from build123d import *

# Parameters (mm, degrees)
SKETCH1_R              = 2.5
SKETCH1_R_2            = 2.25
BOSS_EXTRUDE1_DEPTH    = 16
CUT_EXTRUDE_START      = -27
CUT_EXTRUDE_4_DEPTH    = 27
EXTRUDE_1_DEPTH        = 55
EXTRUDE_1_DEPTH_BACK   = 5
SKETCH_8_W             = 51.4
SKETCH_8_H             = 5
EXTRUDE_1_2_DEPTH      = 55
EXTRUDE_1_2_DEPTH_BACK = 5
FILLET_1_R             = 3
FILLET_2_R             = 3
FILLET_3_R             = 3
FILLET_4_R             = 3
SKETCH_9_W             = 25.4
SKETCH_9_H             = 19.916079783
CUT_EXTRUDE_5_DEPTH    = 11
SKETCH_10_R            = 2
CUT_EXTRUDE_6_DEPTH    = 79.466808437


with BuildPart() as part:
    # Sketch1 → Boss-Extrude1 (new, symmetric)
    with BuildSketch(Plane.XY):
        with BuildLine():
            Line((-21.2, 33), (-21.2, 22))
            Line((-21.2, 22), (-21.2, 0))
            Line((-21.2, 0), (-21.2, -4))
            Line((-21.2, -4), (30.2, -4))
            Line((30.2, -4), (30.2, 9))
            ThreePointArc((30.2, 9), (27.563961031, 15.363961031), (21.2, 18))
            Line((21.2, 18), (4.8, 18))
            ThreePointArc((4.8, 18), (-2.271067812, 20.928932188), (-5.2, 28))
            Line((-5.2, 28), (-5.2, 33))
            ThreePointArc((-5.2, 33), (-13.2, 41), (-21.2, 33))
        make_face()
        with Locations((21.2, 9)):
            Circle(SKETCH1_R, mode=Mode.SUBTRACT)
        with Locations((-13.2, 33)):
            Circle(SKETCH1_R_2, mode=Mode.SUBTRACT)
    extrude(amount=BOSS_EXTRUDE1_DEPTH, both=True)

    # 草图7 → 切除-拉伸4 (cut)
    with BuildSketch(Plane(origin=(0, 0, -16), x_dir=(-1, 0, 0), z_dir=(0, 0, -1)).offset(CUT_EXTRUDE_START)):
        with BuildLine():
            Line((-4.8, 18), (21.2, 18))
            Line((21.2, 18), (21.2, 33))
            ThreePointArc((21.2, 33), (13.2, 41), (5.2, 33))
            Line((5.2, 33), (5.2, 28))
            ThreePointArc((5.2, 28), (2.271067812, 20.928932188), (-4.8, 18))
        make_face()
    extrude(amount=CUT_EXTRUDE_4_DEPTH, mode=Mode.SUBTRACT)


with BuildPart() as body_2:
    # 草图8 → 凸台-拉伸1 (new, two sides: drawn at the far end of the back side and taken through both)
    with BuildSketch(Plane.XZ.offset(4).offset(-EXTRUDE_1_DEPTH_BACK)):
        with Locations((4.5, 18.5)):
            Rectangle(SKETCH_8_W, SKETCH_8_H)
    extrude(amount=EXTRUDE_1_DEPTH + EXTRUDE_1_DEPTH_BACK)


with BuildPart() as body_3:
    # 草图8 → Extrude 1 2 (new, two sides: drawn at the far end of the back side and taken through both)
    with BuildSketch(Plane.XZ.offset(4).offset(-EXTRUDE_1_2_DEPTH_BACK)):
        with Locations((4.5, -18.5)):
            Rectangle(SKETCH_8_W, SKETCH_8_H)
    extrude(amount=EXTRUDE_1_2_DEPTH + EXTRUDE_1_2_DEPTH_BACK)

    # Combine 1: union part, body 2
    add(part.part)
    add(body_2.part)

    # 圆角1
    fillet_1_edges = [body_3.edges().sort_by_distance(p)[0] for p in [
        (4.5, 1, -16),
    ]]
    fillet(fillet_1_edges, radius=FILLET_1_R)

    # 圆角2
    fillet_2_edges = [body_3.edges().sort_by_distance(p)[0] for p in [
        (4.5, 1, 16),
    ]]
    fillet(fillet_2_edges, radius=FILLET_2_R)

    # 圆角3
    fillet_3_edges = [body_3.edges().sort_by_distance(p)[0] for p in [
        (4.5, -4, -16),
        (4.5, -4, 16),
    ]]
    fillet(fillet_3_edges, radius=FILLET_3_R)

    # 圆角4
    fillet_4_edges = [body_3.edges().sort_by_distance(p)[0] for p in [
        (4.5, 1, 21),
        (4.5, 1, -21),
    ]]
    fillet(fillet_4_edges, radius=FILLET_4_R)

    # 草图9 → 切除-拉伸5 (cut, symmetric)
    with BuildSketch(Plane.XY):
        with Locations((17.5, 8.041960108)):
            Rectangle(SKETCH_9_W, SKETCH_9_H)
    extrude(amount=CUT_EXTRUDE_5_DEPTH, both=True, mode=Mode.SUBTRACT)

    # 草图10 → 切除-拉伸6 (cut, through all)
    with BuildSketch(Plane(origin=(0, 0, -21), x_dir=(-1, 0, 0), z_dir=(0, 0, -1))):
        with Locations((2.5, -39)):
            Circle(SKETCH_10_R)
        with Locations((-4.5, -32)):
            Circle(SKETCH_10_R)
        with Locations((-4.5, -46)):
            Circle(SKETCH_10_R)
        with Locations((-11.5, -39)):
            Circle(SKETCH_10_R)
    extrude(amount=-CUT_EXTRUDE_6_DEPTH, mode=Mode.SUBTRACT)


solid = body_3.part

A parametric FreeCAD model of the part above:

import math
import FreeCAD as App
import Part
import Sketcher

V = App.Vector
Q = App.Units.Quantity


def edges_at(feature, points):
    """Names of the edges that pass closest to the given points."""
    edges = feature.Shape.Edges
    near = lambda p: min(range(len(edges)), key=lambda i: edges[i].distToShape(Part.Vertex(*p))[0])
    return sorted({f"Edge{near(p) + 1}" for p in points})


def add_polygon(sketch, points):
    """Adds a closed chain of lines whose ends are joined by coincident constraints."""
    first, n = sketch.GeometryCount, len(points)
    for a, b in zip(points, points[1:] + points[:1]):
        sketch.addGeometry(Part.LineSegment(App.Vector(*a, 0), App.Vector(*b, 0)), False)
    for i in range(n):
        sketch.addConstraint(Sketcher.Constraint("Coincident", first + i, 2, first + (i + 1) % n, 1))

doc = App.newDocument("Part")
params = doc.addObject("Spreadsheet::Sheet", "Params")
for row, (alias, value) in enumerate([
    ("sketch1_diameter", "5 mm"),
    ("sketch1_radius", "9 mm"),
    ("sketch1_radius2", "10 mm"),
    ("sketch1_radius3", "8 mm"),
    ("sketch1_diameter2", "4.5 mm"),
    ("pad1_length", "32 mm"),
    ("sketch2_radius", "8 mm"),
    ("sketch2_radius2", "10 mm"),
    ("sketch2_height", "15 mm"),
    ("pocket1_length", "27 mm"),
    ("sketch3_height", "5 mm"),
    ("sketch3_width", "51.4 mm"),
    ("pad2_length", "55 mm"),
    ("pad2_length2", "5 mm"),
    ("sketch4_height", "5 mm"),
    ("sketch4_width", "51.4 mm"),
    ("pad3_length", "55 mm"),
    ("pad3_length2", "5 mm"),
    ("fillet_radius", "3 mm"),
    ("fillet2_radius", "3 mm"),
    ("fillet3_radius", "3 mm"),
    ("fillet4_radius", "3 mm"),
    ("sketch5_width", "25.4 mm"),
    ("pocket2_length", "22 mm"),
    ("sketch6_diameter", "4 mm"),
], start=1):
    params.set(f"A{row}", alias)
    params.set(f"B{row}", "=" + value)
    params.setAlias(f"B{row}", alias)

body = doc.addObject("PartDesign::Body", "Body")

# Sketch on XY plane
sketch1 = doc.addObject("Sketcher::SketchObject", "Sketch")
body.addObject(sketch1)
sketch1.AttachmentSupport = (doc.XY_Plane, [""])
sketch1.MapMode = "FlatFace"
sketch1.addGeometry([
    Part.LineSegment(V(-21.2, 33, 0), V(-21.2, -4, 0)),  # 0
    Part.LineSegment(V(-21.2, -4, 0), V(30.2, -4, 0)),  # 1
    Part.LineSegment(V(30.2, -4, 0), V(30.2, 9, 0)),  # 2
    Part.ArcOfCircle(Part.Circle(V(21.2, 9, 0), V(0, 0, 1), 9), math.radians(0), math.radians(90)),  # 3
    Part.LineSegment(V(21.2, 18, 0), V(4.8, 18, 0)),  # 4
    Part.ArcOfCircle(Part.Circle(V(4.8, 28, 0), V(0, 0, 1), 10), math.radians(180), math.radians(270)),  # 5
    Part.LineSegment(V(-5.2, 28, 0), V(-5.2, 33, 0)),  # 6
    Part.ArcOfCircle(Part.Circle(V(-13.2, 33, 0), V(0, 0, 1), 8), math.radians(0), math.radians(180)),  # 7
    Part.Circle(V(21.2, 9, 0), V(0, 0, 1), 2.5),  # 8
    Part.Circle(V(-13.2, 33, 0), V(0, 0, 1), 2.25),  # 9
], False)
sketch1.addConstraint([
    Sketcher.Constraint("Coincident", 0, 2, 1, 1),
    Sketcher.Constraint("Coincident", 1, 2, 2, 1),
    Sketcher.Constraint("Tangent", 2, 2, 3, 1),
    Sketcher.Constraint("Tangent", 3, 2, 4, 1),
    Sketcher.Constraint("Tangent", 4, 2, 5, 2),
    Sketcher.Constraint("Tangent", 5, 1, 6, 1),
    Sketcher.Constraint("Tangent", 6, 2, 7, 1),
    Sketcher.Constraint("Tangent", 7, 2, 0, 1),
    Sketcher.Constraint("Vertical", 0),
    Sketcher.Constraint("Horizontal", 1),
    Sketcher.Constraint("Vertical", 2),
    Sketcher.Constraint("Horizontal", 4),
    Sketcher.Constraint("Vertical", 6),
    Sketcher.Constraint("Coincident", 8, 3, 3, 3),
    Sketcher.Constraint("Coincident", 9, 3, 7, 3),
    Sketcher.Constraint("Diameter", 8, Q("5 mm")),
    Sketcher.Constraint("Radius", 3, Q("9 mm")),
    Sketcher.Constraint("Radius", 5, Q("10 mm")),
    Sketcher.Constraint("Radius", 7, Q("8 mm")),
    Sketcher.Constraint("Diameter", 9, Q("4.5 mm")),
    Sketcher.Constraint("DistanceY", 0, 2, 0, 1, Q("37 mm")),
    Sketcher.Constraint("DistanceY", 2, 1, 2, 2, Q("13 mm")),
    Sketcher.Constraint("DistanceX", 1, 1, 1, 2, Q("51.4 mm")),
    Sketcher.Constraint("DistanceY", -1, 1, 3, 3, Q("9 mm")),
    Sketcher.Constraint("DistanceX", -1, 1, 3, 3, Q("21.2 mm")),
])
sketch1.setExpression("Constraints[15]", "Params.sketch1_diameter")
sketch1.setExpression("Constraints[16]", "Params.sketch1_radius")
sketch1.setExpression("Constraints[17]", "Params.sketch1_radius2")
sketch1.setExpression("Constraints[18]", "Params.sketch1_radius3")
sketch1.setExpression("Constraints[19]", "Params.sketch1_diameter2")
pad1 = doc.addObject("PartDesign::Pad", "Pad")
body.addObject(pad1)
pad1.Profile = sketch1
pad1.setExpression("Length", "Params.pad1_length")
pad1.Midplane = True

# Sketch on XY plane
sketch2 = doc.addObject("Sketcher::SketchObject", "Sketch001")
body.addObject(sketch2)
sketch2.AttachmentSupport = (doc.XY_Plane, [""])
sketch2.MapMode = "FlatFace"
sketch2.AttachmentOffset = App.Placement(V(0, 0, 11), App.Rotation())
sketch2.addGeometry([
    Part.LineSegment(V(4.8, 18, 0), V(-21.2, 18, 0)),  # 0
    Part.LineSegment(V(-21.2, 18, 0), V(-21.2, 33, 0)),  # 1
    Part.ArcOfCircle(Part.Circle(V(-13.2, 33, 0), V(0, 0, 1), 8), math.radians(0), math.radians(180)),  # 2
    Part.LineSegment(V(-5.2, 33, 0), V(-5.2, 28, 0)),  # 3
    Part.ArcOfCircle(Part.Circle(V(4.8, 28, 0), V(0, 0, 1), 10), math.radians(180), math.radians(270)),  # 4
], False)
sketch2.addConstraint([
    Sketcher.Constraint("Coincident", 0, 2, 1, 1),
    Sketcher.Constraint("Tangent", 1, 2, 2, 2),
    Sketcher.Constraint("Tangent", 2, 1, 3, 1),
    Sketcher.Constraint("Tangent", 3, 2, 4, 1),
    Sketcher.Constraint("Tangent", 4, 2, 0, 1),
    Sketcher.Constraint("Horizontal", 0),
    Sketcher.Constraint("Vertical", 1),
    Sketcher.Constraint("Vertical", 3),
    Sketcher.Constraint("Radius", 2, Q("8 mm")),
    Sketcher.Constraint("Radius", 4, Q("10 mm")),
    Sketcher.Constraint("DistanceY", 1, 1, 1, 2, Q("15 mm")),
    Sketcher.Constraint("DistanceY", -1, 1, 2, 3, Q("33 mm")),
    Sketcher.Constraint("DistanceX", 2, 3, -1, 1, Q("13.2 mm")),
])
sketch2.setExpression("Constraints[8]", "Params.sketch2_radius")
sketch2.setExpression("Constraints[9]", "Params.sketch2_radius2")
sketch2.setExpression("Constraints[10]", "Params.sketch2_height")
pocket1 = doc.addObject("PartDesign::Pocket", "Pocket")
body.addObject(pocket1)
pocket1.Profile = sketch2
pocket1.setExpression("Length", "Params.pocket1_length")
body2 = doc.addObject("PartDesign::Body", "Body001")

# Sketch on XZ plane
sketch3 = doc.addObject("Sketcher::SketchObject", "Sketch002")
body2.addObject(sketch3)
sketch3.AttachmentSupport = (doc.getObject("XZ_Plane001"), [""])
sketch3.MapMode = "FlatFace"
sketch3.AttachmentOffset = App.Placement(V(0, 0, 4), App.Rotation())
add_polygon(sketch3, [(-21.2, 21), (-21.2, 16), (30.2, 16), (30.2, 21)])  # lines 0-3
sketch3.addConstraint([
    Sketcher.Constraint("Vertical", 0),
    Sketcher.Constraint("Horizontal", 1),
    Sketcher.Constraint("Vertical", 2),
    Sketcher.Constraint("Horizontal", 3),
    Sketcher.Constraint("DistanceY", 0, 2, 0, 1, Q("5 mm")),
    Sketcher.Constraint("DistanceX", 1, 1, 1, 2, Q("51.4 mm")),
    Sketcher.Constraint("DistanceY", -1, 1, 0, 2, Q("16 mm")),
    Sketcher.Constraint("DistanceX", 0, 2, -1, 1, Q("21.2 mm")),
])
sketch3.setExpression("Constraints[8]", "Params.sketch3_height")
sketch3.setExpression("Constraints[9]", "Params.sketch3_width")
pad2 = doc.addObject("PartDesign::Pad", "Pad001")
body2.addObject(pad2)
pad2.Profile = sketch3
pad2.Type = "TwoLengths"
pad2.setExpression("Length", "Params.pad2_length")
pad2.setExpression("Length2", "Params.pad2_length2")
body3 = doc.addObject("PartDesign::Body", "Body002")

# Sketch on XZ plane
sketch4 = doc.addObject("Sketcher::SketchObject", "Sketch003")
body3.addObject(sketch4)
sketch4.AttachmentSupport = (doc.getObject("XZ_Plane002"), [""])
sketch4.MapMode = "FlatFace"
sketch4.AttachmentOffset = App.Placement(V(0, 0, 4), App.Rotation())
add_polygon(sketch4, [(-21.2, -16), (-21.2, -21), (30.2, -21), (30.2, -16)])  # lines 0-3
sketch4.addConstraint([
    Sketcher.Constraint("Vertical", 0),
    Sketcher.Constraint("Horizontal", 1),
    Sketcher.Constraint("Vertical", 2),
    Sketcher.Constraint("Horizontal", 3),
    Sketcher.Constraint("DistanceY", 0, 2, 0, 1, Q("5 mm")),
    Sketcher.Constraint("DistanceX", 1, 1, 1, 2, Q("51.4 mm")),
    Sketcher.Constraint("DistanceY", 0, 2, -1, 1, Q("21 mm")),
    Sketcher.Constraint("DistanceX", 0, 2, -1, 1, Q("21.2 mm")),
])
sketch4.setExpression("Constraints[8]", "Params.sketch4_height")
sketch4.setExpression("Constraints[9]", "Params.sketch4_width")
pad3 = doc.addObject("PartDesign::Pad", "Pad002")
body3.addObject(pad3)
pad3.Profile = sketch4
pad3.Type = "TwoLengths"
pad3.setExpression("Length", "Params.pad3_length")
pad3.setExpression("Length2", "Params.pad3_length2")
doc.recompute()

boolean = doc.addObject("PartDesign::Boolean", "Boolean")
body3.addObject(boolean)
boolean.Type = "Fuse"
boolean.addObjects([body])
doc.recompute()

boolean2 = doc.addObject("PartDesign::Boolean", "Boolean001")
body3.addObject(boolean2)
boolean2.Type = "Fuse"
boolean2.addObjects([body2])
doc.recompute()

fillet = doc.addObject("PartDesign::Fillet", "Fillet")
body3.addObject(fillet)
fillet.Base = (boolean2, edges_at(boolean2, [(4.5, 1, -16)]))
fillet.setExpression("Radius", "Params.fillet_radius")
doc.recompute()

fillet2 = doc.addObject("PartDesign::Fillet", "Fillet001")
body3.addObject(fillet2)
fillet2.Base = (fillet, edges_at(fillet, [(4.5, 1, 16)]))
fillet2.setExpression("Radius", "Params.fillet2_radius")
doc.recompute()

fillet3 = doc.addObject("PartDesign::Fillet", "Fillet002")
body3.addObject(fillet3)
fillet3.Base = (fillet2, edges_at(fillet2, [(4.5, -4, -16), (4.5, -4, 16)]))
fillet3.setExpression("Radius", "Params.fillet3_radius")
doc.recompute()

fillet4 = doc.addObject("PartDesign::Fillet", "Fillet003")
body3.addObject(fillet4)
fillet4.Base = (fillet3, edges_at(fillet3, [(4.5, 1, 21), (4.5, 1, -21)]))
fillet4.setExpression("Radius", "Params.fillet4_radius")

# Sketch on XY plane
sketch5 = doc.addObject("Sketcher::SketchObject", "Sketch004")
body3.addObject(sketch5)
sketch5.AttachmentSupport = (doc.getObject("XY_Plane002"), [""])
sketch5.MapMode = "FlatFace"
add_polygon(sketch5, [(4.8, 18), (4.8, -1.91608), (30.2, -1.91608), (30.2, 18)])  # lines 0-3
sketch5.addConstraint([
    Sketcher.Constraint("Vertical", 0),
    Sketcher.Constraint("Horizontal", 1),
    Sketcher.Constraint("Vertical", 2),
    Sketcher.Constraint("Horizontal", 3),
    Sketcher.Constraint("DistanceX", 1, 1, 1, 2, Q("25.4 mm")),
    Sketcher.Constraint("DistanceY", -1, 1, 2, 2, Q("18 mm")),
    Sketcher.Constraint("DistanceX", -1, 1, 0, 2, Q("4.8 mm")),
    Sketcher.Constraint("DistanceY", 0, 2, 0, 1, Q("19.91608 mm")),
])
sketch5.setExpression("Constraints[8]", "Params.sketch5_width")
pocket2 = doc.addObject("PartDesign::Pocket", "Pocket001")
body3.addObject(pocket2)
pocket2.Profile = sketch5
pocket2.setExpression("Length", "Params.pocket2_length")
pocket2.Midplane = True

# Sketch on XY plane
sketch6 = doc.addObject("Sketcher::SketchObject", "Sketch005")
body3.addObject(sketch6)
sketch6.AttachmentSupport = (doc.getObject("XY_Plane002"), [""])
sketch6.MapMode = "FlatFace"
sketch6.AttachmentOffset = App.Placement(V(0, 0, -21), App.Rotation())
sketch6.addGeometry([
    Part.Circle(V(-2.5, -39, 0), V(0, 0, 1), 2),
    Part.Circle(V(4.5, -32, 0), V(0, 0, 1), 2),
    Part.Circle(V(4.5, -46, 0), V(0, 0, 1), 2),
    Part.Circle(V(11.5, -39, 0), V(0, 0, 1), 2),
], False)
sketch6.addConstraint([
    Sketcher.Constraint("Equal", 0, 1),
    Sketcher.Constraint("Equal", 1, 2),
    Sketcher.Constraint("Equal", 2, 3),
    Sketcher.Constraint("Horizontal", 0, 3, 3, 3),
    Sketcher.Constraint("Vertical", 1, 3, 2, 3),
    Sketcher.Constraint("Diameter", 0, Q("4 mm")),
    Sketcher.Constraint("DistanceY", 0, 3, -1, 1, Q("39 mm")),
    Sketcher.Constraint("DistanceY", 1, 3, -1, 1, Q("32 mm")),
    Sketcher.Constraint("DistanceY", 2, 3, -1, 1, Q("46 mm")),
    Sketcher.Constraint("DistanceX", 0, 3, 1, 3, Q("7 mm")),
    Sketcher.Constraint("DistanceX", 1, 3, 3, 3, Q("7 mm")),
    Sketcher.Constraint("DistanceX", 0, 3, -1, 1, Q("2.5 mm")),
])
sketch6.setExpression("Constraints[5]", "Params.sketch6_diameter")
pocket3 = doc.addObject("PartDesign::Pocket", "Pocket002")
body3.addObject(pocket3)
pocket3.Profile = sketch6
pocket3.Type = "ThroughAll"
pocket3.Reversed = True

doc.recompute()
